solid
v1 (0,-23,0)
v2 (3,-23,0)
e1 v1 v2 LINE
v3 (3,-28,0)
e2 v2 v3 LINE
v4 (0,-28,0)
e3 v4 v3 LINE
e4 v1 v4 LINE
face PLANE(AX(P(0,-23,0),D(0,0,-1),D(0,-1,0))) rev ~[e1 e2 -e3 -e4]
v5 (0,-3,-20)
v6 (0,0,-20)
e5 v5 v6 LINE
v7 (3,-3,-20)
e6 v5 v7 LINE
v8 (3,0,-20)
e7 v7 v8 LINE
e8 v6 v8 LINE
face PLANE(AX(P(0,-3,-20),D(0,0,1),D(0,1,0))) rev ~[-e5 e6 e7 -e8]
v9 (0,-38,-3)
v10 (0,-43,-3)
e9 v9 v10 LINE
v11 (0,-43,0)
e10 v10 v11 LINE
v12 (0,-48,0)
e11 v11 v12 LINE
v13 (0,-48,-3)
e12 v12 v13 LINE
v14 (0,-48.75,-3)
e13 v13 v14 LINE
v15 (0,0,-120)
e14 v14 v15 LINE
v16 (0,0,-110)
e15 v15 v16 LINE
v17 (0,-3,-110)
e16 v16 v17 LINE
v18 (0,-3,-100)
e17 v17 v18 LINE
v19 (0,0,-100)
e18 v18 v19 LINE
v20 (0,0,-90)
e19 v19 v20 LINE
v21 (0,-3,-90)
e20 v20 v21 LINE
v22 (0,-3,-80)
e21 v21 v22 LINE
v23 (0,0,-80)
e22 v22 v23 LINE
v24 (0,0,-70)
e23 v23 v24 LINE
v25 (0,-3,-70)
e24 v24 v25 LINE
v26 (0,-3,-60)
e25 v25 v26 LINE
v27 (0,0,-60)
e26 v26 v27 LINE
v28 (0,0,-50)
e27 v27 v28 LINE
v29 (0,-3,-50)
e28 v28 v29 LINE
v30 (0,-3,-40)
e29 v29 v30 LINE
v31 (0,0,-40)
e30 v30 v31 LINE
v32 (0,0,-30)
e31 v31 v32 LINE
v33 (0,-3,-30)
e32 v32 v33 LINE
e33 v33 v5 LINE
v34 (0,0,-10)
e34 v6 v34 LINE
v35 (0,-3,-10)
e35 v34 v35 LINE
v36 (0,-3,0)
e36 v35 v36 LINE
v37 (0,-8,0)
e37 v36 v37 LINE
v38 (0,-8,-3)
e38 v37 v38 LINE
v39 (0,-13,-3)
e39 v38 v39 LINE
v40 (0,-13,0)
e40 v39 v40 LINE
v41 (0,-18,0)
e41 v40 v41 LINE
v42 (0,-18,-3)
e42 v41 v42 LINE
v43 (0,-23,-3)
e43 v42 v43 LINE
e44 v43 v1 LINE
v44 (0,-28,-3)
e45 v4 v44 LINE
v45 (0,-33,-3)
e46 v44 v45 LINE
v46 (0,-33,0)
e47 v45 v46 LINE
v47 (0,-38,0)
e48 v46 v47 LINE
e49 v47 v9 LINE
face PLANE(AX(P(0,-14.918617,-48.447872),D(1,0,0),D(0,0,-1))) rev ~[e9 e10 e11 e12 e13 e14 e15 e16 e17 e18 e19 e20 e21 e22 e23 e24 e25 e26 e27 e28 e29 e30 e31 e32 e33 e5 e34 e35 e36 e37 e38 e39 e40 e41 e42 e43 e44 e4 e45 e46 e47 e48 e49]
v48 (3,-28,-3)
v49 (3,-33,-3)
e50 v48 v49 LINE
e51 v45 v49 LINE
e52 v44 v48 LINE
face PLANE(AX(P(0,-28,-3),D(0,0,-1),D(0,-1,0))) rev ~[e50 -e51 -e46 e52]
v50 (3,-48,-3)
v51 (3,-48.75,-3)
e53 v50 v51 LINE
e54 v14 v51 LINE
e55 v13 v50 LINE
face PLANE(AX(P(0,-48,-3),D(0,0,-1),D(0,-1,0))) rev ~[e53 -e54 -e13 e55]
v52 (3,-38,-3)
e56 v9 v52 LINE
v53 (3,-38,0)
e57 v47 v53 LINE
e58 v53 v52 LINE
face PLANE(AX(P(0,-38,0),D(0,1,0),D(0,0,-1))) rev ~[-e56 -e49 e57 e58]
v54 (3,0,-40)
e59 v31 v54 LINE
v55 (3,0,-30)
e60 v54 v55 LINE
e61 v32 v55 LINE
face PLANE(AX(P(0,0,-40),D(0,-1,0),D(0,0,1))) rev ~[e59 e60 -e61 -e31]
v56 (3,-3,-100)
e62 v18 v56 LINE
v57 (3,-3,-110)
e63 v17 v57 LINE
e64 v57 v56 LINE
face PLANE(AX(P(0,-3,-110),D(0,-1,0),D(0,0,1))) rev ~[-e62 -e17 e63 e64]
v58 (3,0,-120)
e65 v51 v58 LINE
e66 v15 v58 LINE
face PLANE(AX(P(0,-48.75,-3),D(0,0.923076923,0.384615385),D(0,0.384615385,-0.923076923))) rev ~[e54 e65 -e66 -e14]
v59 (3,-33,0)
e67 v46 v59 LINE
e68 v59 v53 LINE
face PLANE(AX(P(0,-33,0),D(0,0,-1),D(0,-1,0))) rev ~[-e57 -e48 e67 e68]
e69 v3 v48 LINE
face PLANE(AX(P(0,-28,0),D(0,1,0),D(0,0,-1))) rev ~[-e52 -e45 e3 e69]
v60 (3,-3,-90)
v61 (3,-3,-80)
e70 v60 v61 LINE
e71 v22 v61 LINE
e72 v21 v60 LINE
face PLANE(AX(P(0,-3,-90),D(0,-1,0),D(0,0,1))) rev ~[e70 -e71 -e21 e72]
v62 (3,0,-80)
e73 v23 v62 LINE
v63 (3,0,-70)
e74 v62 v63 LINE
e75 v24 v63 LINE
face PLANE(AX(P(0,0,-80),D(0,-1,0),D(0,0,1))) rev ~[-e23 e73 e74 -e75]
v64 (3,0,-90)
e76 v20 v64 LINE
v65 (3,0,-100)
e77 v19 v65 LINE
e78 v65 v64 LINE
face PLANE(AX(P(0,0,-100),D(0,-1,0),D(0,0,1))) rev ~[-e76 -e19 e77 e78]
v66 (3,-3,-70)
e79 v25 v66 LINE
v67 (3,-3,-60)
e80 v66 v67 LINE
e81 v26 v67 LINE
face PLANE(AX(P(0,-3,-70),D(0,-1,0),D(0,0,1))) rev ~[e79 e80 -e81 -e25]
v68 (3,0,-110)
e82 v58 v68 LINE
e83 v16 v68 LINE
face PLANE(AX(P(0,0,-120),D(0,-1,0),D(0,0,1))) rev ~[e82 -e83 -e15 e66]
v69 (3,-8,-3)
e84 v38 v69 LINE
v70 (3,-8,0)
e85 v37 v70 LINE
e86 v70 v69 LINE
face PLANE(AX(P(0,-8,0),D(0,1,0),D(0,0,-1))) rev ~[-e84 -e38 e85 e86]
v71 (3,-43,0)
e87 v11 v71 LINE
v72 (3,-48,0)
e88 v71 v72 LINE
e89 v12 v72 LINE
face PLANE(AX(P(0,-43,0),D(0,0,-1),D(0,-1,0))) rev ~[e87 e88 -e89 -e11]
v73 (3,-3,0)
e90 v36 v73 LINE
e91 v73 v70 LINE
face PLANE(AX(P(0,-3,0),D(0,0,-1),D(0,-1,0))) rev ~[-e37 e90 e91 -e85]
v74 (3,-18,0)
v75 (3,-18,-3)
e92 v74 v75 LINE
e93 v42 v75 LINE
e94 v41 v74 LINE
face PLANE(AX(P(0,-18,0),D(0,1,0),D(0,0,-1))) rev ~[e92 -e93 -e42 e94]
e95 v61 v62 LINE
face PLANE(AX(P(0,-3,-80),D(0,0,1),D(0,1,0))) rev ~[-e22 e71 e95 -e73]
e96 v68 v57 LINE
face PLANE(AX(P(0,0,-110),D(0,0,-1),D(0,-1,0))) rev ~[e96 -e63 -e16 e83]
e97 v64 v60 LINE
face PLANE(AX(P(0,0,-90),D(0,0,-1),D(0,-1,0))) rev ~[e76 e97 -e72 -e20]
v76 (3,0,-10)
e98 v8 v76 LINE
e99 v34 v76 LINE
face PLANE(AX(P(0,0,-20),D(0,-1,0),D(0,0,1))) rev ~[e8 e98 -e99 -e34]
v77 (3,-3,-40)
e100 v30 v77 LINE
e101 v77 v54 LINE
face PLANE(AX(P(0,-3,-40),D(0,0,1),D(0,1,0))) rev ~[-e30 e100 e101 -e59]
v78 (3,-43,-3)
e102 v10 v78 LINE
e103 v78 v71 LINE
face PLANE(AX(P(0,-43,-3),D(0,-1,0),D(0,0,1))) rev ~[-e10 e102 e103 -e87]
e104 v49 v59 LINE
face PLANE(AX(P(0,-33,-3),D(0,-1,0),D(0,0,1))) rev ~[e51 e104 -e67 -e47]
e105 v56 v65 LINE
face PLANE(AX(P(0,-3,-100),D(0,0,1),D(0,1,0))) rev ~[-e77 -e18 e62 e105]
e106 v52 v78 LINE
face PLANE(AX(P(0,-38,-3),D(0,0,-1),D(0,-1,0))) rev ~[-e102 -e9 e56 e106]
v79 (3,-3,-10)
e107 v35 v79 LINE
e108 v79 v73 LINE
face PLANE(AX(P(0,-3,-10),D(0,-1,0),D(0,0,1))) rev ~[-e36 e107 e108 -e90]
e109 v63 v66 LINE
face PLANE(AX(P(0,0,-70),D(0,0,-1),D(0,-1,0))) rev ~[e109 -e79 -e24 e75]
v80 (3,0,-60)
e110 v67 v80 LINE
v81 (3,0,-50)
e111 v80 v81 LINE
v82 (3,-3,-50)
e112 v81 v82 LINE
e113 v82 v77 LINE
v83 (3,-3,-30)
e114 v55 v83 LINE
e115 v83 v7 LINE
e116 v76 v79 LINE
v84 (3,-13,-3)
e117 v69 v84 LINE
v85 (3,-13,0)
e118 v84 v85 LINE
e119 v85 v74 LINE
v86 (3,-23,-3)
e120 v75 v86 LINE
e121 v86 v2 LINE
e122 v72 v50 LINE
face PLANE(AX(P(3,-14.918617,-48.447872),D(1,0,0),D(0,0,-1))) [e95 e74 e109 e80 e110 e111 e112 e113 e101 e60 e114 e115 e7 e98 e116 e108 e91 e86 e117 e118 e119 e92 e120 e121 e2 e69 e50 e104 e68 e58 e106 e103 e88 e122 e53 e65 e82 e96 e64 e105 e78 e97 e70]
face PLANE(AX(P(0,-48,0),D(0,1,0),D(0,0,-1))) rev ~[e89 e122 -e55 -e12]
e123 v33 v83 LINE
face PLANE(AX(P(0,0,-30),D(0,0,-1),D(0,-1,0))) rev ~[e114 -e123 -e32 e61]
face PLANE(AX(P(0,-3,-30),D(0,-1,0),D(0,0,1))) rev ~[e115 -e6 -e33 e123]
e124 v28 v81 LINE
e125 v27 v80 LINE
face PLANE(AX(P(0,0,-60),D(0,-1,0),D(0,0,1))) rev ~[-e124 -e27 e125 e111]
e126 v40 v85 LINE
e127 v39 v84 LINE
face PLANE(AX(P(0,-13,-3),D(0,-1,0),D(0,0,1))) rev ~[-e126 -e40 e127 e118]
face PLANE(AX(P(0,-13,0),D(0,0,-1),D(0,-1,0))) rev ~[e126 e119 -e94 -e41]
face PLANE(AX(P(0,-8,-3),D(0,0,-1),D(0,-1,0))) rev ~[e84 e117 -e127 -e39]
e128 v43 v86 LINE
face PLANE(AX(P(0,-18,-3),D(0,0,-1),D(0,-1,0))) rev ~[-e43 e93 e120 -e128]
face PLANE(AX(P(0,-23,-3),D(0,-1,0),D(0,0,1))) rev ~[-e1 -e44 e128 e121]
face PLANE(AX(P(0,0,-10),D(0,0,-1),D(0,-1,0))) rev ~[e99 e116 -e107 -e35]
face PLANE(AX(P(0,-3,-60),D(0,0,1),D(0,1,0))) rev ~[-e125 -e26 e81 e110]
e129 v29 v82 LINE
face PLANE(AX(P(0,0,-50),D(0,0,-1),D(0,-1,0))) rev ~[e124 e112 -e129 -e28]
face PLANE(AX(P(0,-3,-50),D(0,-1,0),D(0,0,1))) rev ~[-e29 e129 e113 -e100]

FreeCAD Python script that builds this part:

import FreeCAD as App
import Part
import Sketcher
from FreeCAD import Vector
Q = App.Units.Quantity


def add_polygon(sketch, points):
    """Adds a closed chain of lines whose ends are joined by coincident constraints."""
    first, n = sketch.GeometryCount, len(points)
    for a, b in zip(points, points[1:] + points[:1]):
        sketch.addGeometry(Part.LineSegment(App.Vector(*a, 0), App.Vector(*b, 0)), False)
    for i in range(n):
        sketch.addConstraint(Sketcher.Constraint("Coincident", first + i, 2, first + (i + 1) % n, 1))

doc = App.newDocument("Part")
body = doc.addObject("PartDesign::Body", "Body")

# Sketch on YZ plane
sketch1 = doc.addObject("Sketcher::SketchObject", "Sketch")
body.addObject(sketch1)
sketch1.AttachmentSupport = (doc.YZ_Plane, [""])
sketch1.MapMode = "FlatFace"
add_polygon(sketch1, [(-3, -10), (-3, 0), (-8, 0), (-8, -3), (-13, -3), (-13, 0), (-18, 0), (-18, -3), (-23, -3), (-23, 0), (-28, 0), (-28, -3), (-33, -3), (-33, 0), (-38, 0), (-38, -3), (-43, -3), (-43, 0), (-48, 0), (-48, -3), (-48.8, -3), (0, -120), (0, -110), (-3, -110), (-3, -100), (0, -100), (0, -90), (-3, -90), (-3, -80), (0, -80), (0, -70), (-3, -70), (-3, -60), (0, -60), (0, -50), (-3, -50), (-3, -40), (0, -40), (0, -30), (-3, -30), (-3, -20), (0, -20), (0, -10)])  # lines 0-42
sketch1.addConstraint(Sketcher.Constraint("Vertical", 0))
sketch1.addConstraint(Sketcher.Constraint("Horizontal", 1))
sketch1.addConstraint(Sketcher.Constraint("Vertical", 2))
sketch1.addConstraint(Sketcher.Constraint("Horizontal", 3))
sketch1.addConstraint(Sketcher.Constraint("Vertical", 4))
sketch1.addConstraint(Sketcher.Constraint("Horizontal", 5))
sketch1.addConstraint(Sketcher.Constraint("Vertical", 6))
sketch1.addConstraint(Sketcher.Constraint("Horizontal", 7))
sketch1.addConstraint(Sketcher.Constraint("Vertical", 8))
sketch1.addConstraint(Sketcher.Constraint("Horizontal", 9))
sketch1.addConstraint(Sketcher.Constraint("Vertical", 10))
sketch1.addConstraint(Sketcher.Constraint("Horizontal", 11))
sketch1.addConstraint(Sketcher.Constraint("Vertical", 12))
sketch1.addConstraint(Sketcher.Constraint("Horizontal", 13))
sketch1.addConstraint(Sketcher.Constraint("Vertical", 14))
sketch1.addConstraint(Sketcher.Constraint("Horizontal", 15))
sketch1.addConstraint(Sketcher.Constraint("Vertical", 16))
sketch1.addConstraint(Sketcher.Constraint("Horizontal", 17))
sketch1.addConstraint(Sketcher.Constraint("Vertical", 18))
sketch1.addConstraint(Sketcher.Constraint("Horizontal", 19))
sketch1.addConstraint(Sketcher.Constraint("Vertical", 21))
sketch1.addConstraint(Sketcher.Constraint("Horizontal", 22))
sketch1.addConstraint(Sketcher.Constraint("Vertical", 23))
sketch1.addConstraint(Sketcher.Constraint("Horizontal", 24))
sketch1.addConstraint(Sketcher.Constraint("Vertical", 25))
sketch1.addConstraint(Sketcher.Constraint("Horizontal", 26))
sketch1.addConstraint(Sketcher.Constraint("Vertical", 27))
sketch1.addConstraint(Sketcher.Constraint("Horizontal", 28))
sketch1.addConstraint(Sketcher.Constraint("Vertical", 29))
sketch1.addConstraint(Sketcher.Constraint("Horizontal", 30))
sketch1.addConstraint(Sketcher.Constraint("Vertical", 31))
sketch1.addConstraint(Sketcher.Constraint("Horizontal", 32))
sketch1.addConstraint(Sketcher.Constraint("Vertical", 33))
sketch1.addConstraint(Sketcher.Constraint("Horizontal", 34))
sketch1.addConstraint(Sketcher.Constraint("Vertical", 35))
sketch1.addConstraint(Sketcher.Constraint("Horizontal", 36))
sketch1.addConstraint(Sketcher.Constraint("Vertical", 37))
sketch1.addConstraint(Sketcher.Constraint("Horizontal", 38))
sketch1.addConstraint(Sketcher.Constraint("Vertical", 39))
sketch1.addConstraint(Sketcher.Constraint("Horizontal", 40))
sketch1.addConstraint(Sketcher.Constraint("Vertical", 41))
sketch1.addConstraint(Sketcher.Constraint("Horizontal", 42))
sketch1.addConstraint(Sketcher.Constraint("PointOnObject", 0, 2, -1))
sketch1.addConstraint(Sketcher.Constraint("PointOnObject", 4, 2, -1))
sketch1.addConstraint(Sketcher.Constraint("PointOnObject", 8, 2, -1))
sketch1.addConstraint(Sketcher.Constraint("PointOnObject", 12, 2, -1))
sketch1.addConstraint(Sketcher.Constraint("PointOnObject", 16, 2, -1))
sketch1.addConstraint(Sketcher.Constraint("PointOnObject", 20, 2, -2))
sketch1.addConstraint(Sketcher.Constraint("PointOnObject", 24, 2, -2))
sketch1.addConstraint(Sketcher.Constraint("PointOnObject", 28, 2, -2))
sketch1.addConstraint(Sketcher.Constraint("PointOnObject", 32, 2, -2))
sketch1.addConstraint(Sketcher.Constraint("PointOnObject", 36, 2, -2))
sketch1.addConstraint(Sketcher.Constraint("PointOnObject", 40, 2, -2))
sketch1.addConstraint(Sketcher.Constraint("Horizontal", 3, 2, 6, 2))
sketch1.addConstraint(Sketcher.Constraint("Horizontal", 7, 2, 10, 2))
sketch1.addConstraint(Sketcher.Constraint("Horizontal", 11, 2, 14, 2))
sketch1.addConstraint(Sketcher.Constraint("Horizontal", 15, 2, 18, 2))
sketch1.addConstraint(Sketcher.Constraint("Vertical", 0, 2, 22, 2))
sketch1.addConstraint(Sketcher.Constraint("Vertical", 23, 2, 26, 2))
sketch1.addConstraint(Sketcher.Constraint("Vertical", 27, 2, 30, 2))
sketch1.addConstraint(Sketcher.Constraint("Vertical", 31, 2, 34, 2))
sketch1.addConstraint(Sketcher.Constraint("Vertical", 35, 2, 38, 2))
sketch1.addConstraint(Sketcher.Constraint("Equal", 1, 3))
sketch1.addConstraint(Sketcher.Constraint("Equal", 3, 5))
sketch1.addConstraint(Sketcher.Constraint("Equal", 5, 7))
sketch1.addConstraint(Sketcher.Constraint("Equal", 7, 9))
sketch1.addConstraint(Sketcher.Constraint("Equal", 9, 11))
sketch1.addConstraint(Sketcher.Constraint("Equal", 11, 13))
sketch1.addConstraint(Sketcher.Constraint("Equal", 13, 15))
sketch1.addConstraint(Sketcher.Constraint("Equal", 15, 17))
sketch1.addConstraint(Sketcher.Constraint("Equal", 42, 2))
sketch1.addConstraint(Sketcher.Constraint("Equal", 0, 21))
sketch1.addConstraint(Sketcher.Constraint("Equal", 21, 23))
sketch1.addConstraint(Sketcher.Constraint("Equal", 23, 25))
sketch1.addConstraint(Sketcher.Constraint("Equal", 25, 27))
sketch1.addConstraint(Sketcher.Constraint("Equal", 27, 29))
sketch1.addConstraint(Sketcher.Constraint("Equal", 29, 31))
sketch1.addConstraint(Sketcher.Constraint("Equal", 31, 33))
sketch1.addConstraint(Sketcher.Constraint("Equal", 33, 35))
sketch1.addConstraint(Sketcher.Constraint("Equal", 35, 37))
sketch1.addConstraint(Sketcher.Constraint("Equal", 37, 39))
sketch1.addConstraint(Sketcher.Constraint("Equal", 39, 41))
sketch1.addConstraint(Sketcher.Constraint("DistanceX", 1, 2, 1, 1, Q("5 mm")))
sketch1.addConstraint(Sketcher.Constraint("DistanceX", 22, 2, 22, 1, Q("3 mm")))
sketch1.addConstraint(Sketcher.Constraint("DistanceY", 0, 1, 0, 2, Q("10 mm")))
sketch1.addConstraint(Sketcher.Constraint("DistanceX", 19, 2, 19, 1, Q("0.75 mm")))
pad1 = doc.addObject("PartDesign::Pad", "Pad")
body.addObject(pad1)
pad1.Profile = sketch1
pad1.Length = 3

doc.recompute()
